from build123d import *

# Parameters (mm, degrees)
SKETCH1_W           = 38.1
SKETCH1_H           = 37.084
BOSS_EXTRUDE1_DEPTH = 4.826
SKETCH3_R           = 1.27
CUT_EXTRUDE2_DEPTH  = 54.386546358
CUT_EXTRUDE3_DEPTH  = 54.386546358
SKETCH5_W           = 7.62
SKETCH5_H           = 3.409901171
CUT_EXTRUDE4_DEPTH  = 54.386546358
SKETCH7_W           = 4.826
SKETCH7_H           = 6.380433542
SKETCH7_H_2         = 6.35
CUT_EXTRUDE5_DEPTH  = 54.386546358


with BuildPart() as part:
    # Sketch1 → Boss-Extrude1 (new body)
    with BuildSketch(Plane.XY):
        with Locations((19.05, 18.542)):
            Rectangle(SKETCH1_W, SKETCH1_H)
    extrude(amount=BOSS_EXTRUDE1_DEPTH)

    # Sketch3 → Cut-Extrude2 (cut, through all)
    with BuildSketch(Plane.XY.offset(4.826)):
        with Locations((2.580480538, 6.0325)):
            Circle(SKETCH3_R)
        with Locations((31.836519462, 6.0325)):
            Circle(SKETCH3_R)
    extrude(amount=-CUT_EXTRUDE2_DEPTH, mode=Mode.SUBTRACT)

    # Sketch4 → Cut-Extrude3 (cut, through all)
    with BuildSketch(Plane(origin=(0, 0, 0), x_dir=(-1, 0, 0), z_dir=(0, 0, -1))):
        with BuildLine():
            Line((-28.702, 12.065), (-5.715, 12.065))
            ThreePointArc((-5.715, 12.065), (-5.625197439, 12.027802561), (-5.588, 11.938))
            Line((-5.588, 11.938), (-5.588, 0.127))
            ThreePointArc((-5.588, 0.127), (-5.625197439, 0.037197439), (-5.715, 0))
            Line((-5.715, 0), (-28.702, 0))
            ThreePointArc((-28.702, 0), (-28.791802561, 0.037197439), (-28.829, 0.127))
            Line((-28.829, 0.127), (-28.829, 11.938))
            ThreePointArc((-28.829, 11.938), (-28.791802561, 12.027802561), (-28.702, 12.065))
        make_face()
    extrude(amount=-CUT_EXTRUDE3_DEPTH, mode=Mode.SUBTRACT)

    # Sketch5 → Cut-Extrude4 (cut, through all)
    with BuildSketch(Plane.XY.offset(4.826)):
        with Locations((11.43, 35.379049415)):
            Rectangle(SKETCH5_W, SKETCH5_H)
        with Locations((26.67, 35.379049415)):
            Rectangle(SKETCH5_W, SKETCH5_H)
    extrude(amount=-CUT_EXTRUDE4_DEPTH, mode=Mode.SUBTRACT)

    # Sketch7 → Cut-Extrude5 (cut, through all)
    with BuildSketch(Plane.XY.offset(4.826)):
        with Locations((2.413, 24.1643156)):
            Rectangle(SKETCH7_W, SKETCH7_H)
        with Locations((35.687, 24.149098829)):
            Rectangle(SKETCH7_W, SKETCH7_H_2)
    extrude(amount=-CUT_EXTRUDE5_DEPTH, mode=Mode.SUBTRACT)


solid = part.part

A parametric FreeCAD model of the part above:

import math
import FreeCAD as App
import Part
import Sketcher
from FreeCAD import Vector
Q = App.Units.Quantity


def add_polygon(sketch, points):
    """Adds a closed chain of lines whose ends are joined by coincident constraints."""
    first, n = sketch.GeometryCount, len(points)
    for a, b in zip(points, points[1:] + points[:1]):
        sketch.addGeometry(Part.LineSegment(App.Vector(*a, 0), App.Vector(*b, 0)), False)
    for i in range(n):
        sketch.addConstraint(Sketcher.Constraint("Coincident", first + i, 2, first + (i + 1) % n, 1))

doc = App.newDocument("Part")
body = doc.addObject("PartDesign::Body", "Body")

# Sketch on XY plane
sketch1 = doc.addObject("Sketcher::SketchObject", "Sketch")
body.addObject(sketch1)
sketch1.AttachmentSupport = (doc.XY_Plane, [""])
sketch1.MapMode = "FlatFace"
add_polygon(sketch1, [(0, 37), (0, 0), (38, 0), (38, 37)])  # lines 0-3
sketch1.addConstraint([
    Sketcher.Constraint("Vertical", 0),
    Sketcher.Constraint("Horizontal", 1),
    Sketcher.Constraint("Vertical", 2),
    Sketcher.Constraint("Horizontal", 3),
    Sketcher.Constraint("Coincident", 0, 2, -1, 1),
    Sketcher.Constraint("DistanceX", 1, 1, 1, 2, Q("1.5 in")),
    Sketcher.Constraint("DistanceY", 0, 2, 0, 1, Q("1.46 in")),
])
pad1 = doc.addObject("PartDesign::Pad", "Pad")
body.addObject(pad1)
pad1.Profile = sketch1
pad1.Length = Q("0.19 in")

# Sketch on XY plane
sketch2 = doc.addObject("Sketcher::SketchObject", "Sketch001")
body.addObject(sketch2)
sketch2.AttachmentSupport = (doc.XY_Plane, [""])
sketch2.MapMode = "FlatFace"
sketch2.AttachmentOffset = App.Placement(Vector(0, 0, 0.19 * 25.4), App.Rotation())
sketch2.addGeometry([
    Part.Circle(Vector(2.6, 6, 0), Vector(0, 0, 1), 1.3),
    Part.Circle(Vector(31.8, 6, 0), Vector(0, 0, 1), 1.3),
], False)
sketch2.addConstraint([
    Sketcher.Constraint("Equal", 0, 1),
    Sketcher.Constraint("Horizontal", 0, 3, 1, 3),
    Sketcher.Constraint("Diameter", 0, Q("0.1 in")),
    Sketcher.Constraint("DistanceY", -1, 1, 0, 3, Q("0.2375 in")),
    Sketcher.Constraint("DistanceX", -1, 1, 0, 3, 2.580481),
    Sketcher.Constraint("DistanceX", -1, 1, 1, 3, 31.836519),
])
pocket1 = doc.addObject("PartDesign::Pocket", "Pocket")
body.addObject(pocket1)
pocket1.Profile = sketch2
pocket1.Type = "ThroughAll"

# Sketch on XY plane
sketch3 = doc.addObject("Sketcher::SketchObject", "Sketch002")
body.addObject(sketch3)
sketch3.AttachmentSupport = (doc.XY_Plane, [""])
sketch3.MapMode = "FlatFace"
sketch3.addGeometry([
    Part.LineSegment(Vector(5.71, 12.06, 0), Vector(28.7, 12.06, 0)),  # 0
    Part.ArcOfCircle(Part.Circle(Vector(28.7, 11.94, 0), Vector(0, 0, 1), 0.13), math.radians(0), math.radians(90)),  # 1
    Part.LineSegment(Vector(28.83, 11.94, 0), Vector(28.83, 0.13, 0)),  # 2
    Part.ArcOfCircle(Part.Circle(Vector(28.7, 0.13, 0), Vector(0, 0, 1), 0.13), math.radians(-90), math.radians(0)),  # 3
    Part.LineSegment(Vector(28.7, 0, 0), Vector(5.71, 0, 0)),  # 4
    Part.ArcOfCircle(Part.Circle(Vector(5.72, 0.13, 0), Vector(0, 0, 1), 0.13), math.radians(-180), math.radians(-90)),  # 5
    Part.LineSegment(Vector(5.59, 0.13, 0), Vector(5.59, 11.94, 0)),  # 6
    Part.ArcOfCircle(Part.Circle(Vector(5.72, 11.94, 0), Vector(0, 0, 1), 0.13), math.radians(90), math.radians(180)),  # 7
], False)
sketch3.addConstraint([
    Sketcher.Constraint("Tangent", 0, 2, 1, 2),
    Sketcher.Constraint("Tangent", 1, 1, 2, 1),
    Sketcher.Constraint("Tangent", 2, 2, 3, 2),
    Sketcher.Constraint("Tangent", 3, 1, 4, 1),
    Sketcher.Constraint("Tangent", 4, 2, 5, 2),
    Sketcher.Constraint("Tangent", 5, 1, 6, 1),
    Sketcher.Constraint("Tangent", 6, 2, 7, 2),
    Sketcher.Constraint("Tangent", 7, 1, 0, 1),
    Sketcher.Constraint("Horizontal", 0),
    Sketcher.Constraint("Vertical", 2),
    Sketcher.Constraint("Horizontal", 4),
    Sketcher.Constraint("Vertical", 6),
    Sketcher.Constraint("Equal", 1, 3),
    Sketcher.Constraint("Equal", 3, 5),
    Sketcher.Constraint("Equal", 5, 7),
    Sketcher.Constraint("PointOnObject", 3, 1, -1),
    Sketcher.Constraint("Radius", 1, Q("0.005 in")),
    Sketcher.Constraint("DistanceX", 0, 1, 0, 2, Q("0.905 in")),
    Sketcher.Constraint("DistanceY", 2, 2, 2, 1, Q("0.465 in")),
    Sketcher.Constraint("DistanceX", -1, 1, 1, 3, Q("1.13 in")),
])
pocket2 = doc.addObject("PartDesign::Pocket", "Pocket001")
body.addObject(pocket2)
pocket2.Profile = sketch3
pocket2.Type = "ThroughAll"
pocket2.Reversed = True

# Sketch on XY plane
sketch4 = doc.addObject("Sketcher::SketchObject", "Sketch003")
body.addObject(sketch4)
sketch4.AttachmentSupport = (doc.XY_Plane, [""])
sketch4.MapMode = "FlatFace"
sketch4.AttachmentOffset = App.Placement(Vector(0, 0, 0.19 * 25.4), App.Rotation())
add_polygon(sketch4, [(7.6, 37.1), (7.6, 33.7), (15.2, 33.7), (15.2, 37.1)])  # lines 0-3
add_polygon(sketch4, [(22.9, 37.1), (22.9, 33.7), (30.5, 33.7), (30.5, 37.1)])  # lines 4-7
sketch4.addConstraint([
    Sketcher.Constraint("Vertical", 0),
    Sketcher.Constraint("Horizontal", 1),
    Sketcher.Constraint("Vertical", 2),
    Sketcher.Constraint("Horizontal", 3),
    Sketcher.Constraint("Vertical", 4),
    Sketcher.Constraint("Horizontal", 5),
    Sketcher.Constraint("Vertical", 6),
    Sketcher.Constraint("Horizontal", 7),
    Sketcher.Constraint("Horizontal", 1, 2, 4, 2),
    Sketcher.Constraint("Horizontal", 3, 2, 6, 2),
    Sketcher.Constraint("Equal", 3, 5),
    Sketcher.Constraint("DistanceX", 1, 1, 1, 2, Q("0.3 in")),
    Sketcher.Constraint("DistanceX", -1, 1, 0, 2, Q("0.3 in")),
    Sketcher.Constraint("DistanceX", -1, 1, 4, 2, Q("0.9 in")),
    Sketcher.Constraint("DistanceY", -1, 1, 2, 2, Q("1.46 in")),
    Sketcher.Constraint("DistanceY", 0, 2, 0, 1, 3.409901),
])
pocket3 = doc.addObject("PartDesign::Pocket", "Pocket002")
body.addObject(pocket3)
pocket3.Profile = sketch4
pocket3.Type = "ThroughAll"

# Sketch on XY plane
sketch5 = doc.addObject("Sketcher::SketchObject", "Sketch004")
body.addObject(sketch5)
sketch5.AttachmentSupport = (doc.XY_Plane, [""])
sketch5.MapMode = "FlatFace"
sketch5.AttachmentOffset = App.Placement(Vector(0, 0, 0.19 * 25.4), App.Rotation())
add_polygon(sketch5, [(0, 27.4), (0, 21), (4.8, 21), (4.8, 27.4)])  # lines 0-3
add_polygon(sketch5, [(33.3, 27.3), (33.3, 21), (38.1, 21), (38.1, 27.3)])  # lines 4-7
sketch5.addConstraint([
    Sketcher.Constraint("Vertical", 0),
    Sketcher.Constraint("Horizontal", 1),
    Sketcher.Constraint("Vertical", 2),
    Sketcher.Constraint("Horizontal", 3),
    Sketcher.Constraint("Vertical", 4),
    Sketcher.Constraint("Horizontal", 5),
    Sketcher.Constraint("Vertical", 6),
    Sketcher.Constraint("Horizontal", 7),
    Sketcher.Constraint("PointOnObject", 0, 2, -2),
    Sketcher.Constraint("Horizontal", 1, 2, 4, 2),
    Sketcher.Constraint("Equal", 3, 5),
    Sketcher.Constraint("DistanceX", 1, 1, 1, 2, Q("0.19 in")),
    Sketcher.Constraint("DistanceY", 4, 2, 4, 1, Q("0.25 in")),
    Sketcher.Constraint("DistanceX", -1, 1, 5, 2, Q("1.5 in")),
    Sketcher.Constraint("DistanceY", -1, 1, 0, 2, 20.974099),
    Sketcher.Constraint("DistanceY", 0, 2, 0, 1, 6.380434),
])
pocket4 = doc.addObject("PartDesign::Pocket", "Pocket003")
body.addObject(pocket4)
pocket4.Profile = sketch5
pocket4.Type = "ThroughAll"

doc.recompute()
